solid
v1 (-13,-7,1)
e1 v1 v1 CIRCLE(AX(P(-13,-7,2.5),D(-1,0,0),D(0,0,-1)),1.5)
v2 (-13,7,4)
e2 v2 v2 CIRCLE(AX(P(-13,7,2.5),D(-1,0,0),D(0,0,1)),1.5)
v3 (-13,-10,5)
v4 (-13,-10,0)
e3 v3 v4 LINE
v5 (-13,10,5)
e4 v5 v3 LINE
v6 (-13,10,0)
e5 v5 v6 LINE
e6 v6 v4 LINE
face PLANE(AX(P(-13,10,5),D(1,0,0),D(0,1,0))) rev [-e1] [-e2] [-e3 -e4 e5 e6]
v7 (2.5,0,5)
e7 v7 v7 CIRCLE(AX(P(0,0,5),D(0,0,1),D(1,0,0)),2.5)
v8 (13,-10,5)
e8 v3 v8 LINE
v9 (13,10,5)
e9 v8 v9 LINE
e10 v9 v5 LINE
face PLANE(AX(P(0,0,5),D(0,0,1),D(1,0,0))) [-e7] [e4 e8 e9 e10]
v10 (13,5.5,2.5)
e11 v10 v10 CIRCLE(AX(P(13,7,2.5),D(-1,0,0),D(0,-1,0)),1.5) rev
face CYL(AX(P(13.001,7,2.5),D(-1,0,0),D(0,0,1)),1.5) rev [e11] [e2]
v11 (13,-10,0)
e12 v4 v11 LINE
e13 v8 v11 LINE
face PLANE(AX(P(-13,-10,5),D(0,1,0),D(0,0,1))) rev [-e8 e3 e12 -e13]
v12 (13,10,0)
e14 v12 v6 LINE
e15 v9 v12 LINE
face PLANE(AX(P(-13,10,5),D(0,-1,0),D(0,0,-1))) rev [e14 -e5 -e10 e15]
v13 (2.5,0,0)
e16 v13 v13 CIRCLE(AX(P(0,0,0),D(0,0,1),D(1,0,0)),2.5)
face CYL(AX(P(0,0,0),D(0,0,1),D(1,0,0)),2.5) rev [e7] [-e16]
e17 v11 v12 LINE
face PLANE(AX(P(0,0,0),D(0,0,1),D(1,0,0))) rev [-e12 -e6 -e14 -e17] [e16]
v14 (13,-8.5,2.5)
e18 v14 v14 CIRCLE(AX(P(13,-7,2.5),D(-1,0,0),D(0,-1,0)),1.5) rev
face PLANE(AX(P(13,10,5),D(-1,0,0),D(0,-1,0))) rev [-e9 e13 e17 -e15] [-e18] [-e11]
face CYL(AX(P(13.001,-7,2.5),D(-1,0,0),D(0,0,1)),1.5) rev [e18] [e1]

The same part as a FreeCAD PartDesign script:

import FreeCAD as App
import Part
import Sketcher
from FreeCAD import Vector

doc = App.newDocument("Part")
body = doc.addObject("PartDesign::Body", "Body")

sketch1 = doc.addObject("Sketcher::SketchObject", "Sketch")
body.addObject(sketch1)
sketch1.AttachmentSupport = (doc.XY_Plane, [""])
sketch1.MapMode = "FlatFace"
sketch1.addGeometry([
    Part.LineSegment(Vector(-13, 10, 0), Vector(-13, -10, 0)),
    Part.LineSegment(Vector(-13, -10, 0), Vector(13, -10, 0)),
    Part.LineSegment(Vector(13, -10, 0), Vector(13, 10, 0)),
    Part.LineSegment(Vector(13, 10, 0), Vector(-13, 10, 0)),
], False)
sketch1.addConstraint([
    Sketcher.Constraint("Coincident", 0, 2, 1, 1),
    Sketcher.Constraint("Coincident", 1, 2, 2, 1),
    Sketcher.Constraint("Coincident", 2, 2, 3, 1),
    Sketcher.Constraint("Coincident", 3, 2, 0, 1),
    Sketcher.Constraint("Vertical", 0),
    Sketcher.Constraint("Horizontal", 1),
    Sketcher.Constraint("Vertical", 2),
    Sketcher.Constraint("Horizontal", 3),
    Sketcher.Constraint("Symmetric", 0, 2, 2, 2, -1, 1),
    Sketcher.Constraint("DistanceX", 1, 1, 1, 2, 26.0),
    Sketcher.Constraint("DistanceY", 0, 2, 0, 1, 20.0),
])
pad1 = doc.addObject("PartDesign::Pad", "Pad")
body.addObject(pad1)
pad1.Profile = sketch1
pad1.Length = 5

sketch2 = doc.addObject("Sketcher::SketchObject", "Sketch001")
body.addObject(sketch2)
sketch2.AttachmentSupport = (doc.XY_Plane, [""])
sketch2.MapMode = "FlatFace"
sketch2.AttachmentOffset = App.Placement(Vector(0, 0, 5), App.Rotation())
sketch2.addGeometry(Part.Circle(Vector(0, 0, 0), Vector(0, 0, 1), 2.5), False)
sketch2.addConstraint([
    Sketcher.Constraint("Coincident", 0, 3, -1, 1),
    Sketcher.Constraint("Diameter", 0, 5.0),
])
pocket1 = doc.addObject("PartDesign::Pocket", "Pocket")
body.addObject(pocket1)
pocket1.Profile = sketch2
pocket1.Length = 5

sketch3 = doc.addObject("Sketcher::SketchObject", "Sketch002")
body.addObject(sketch3)
sketch3.AttachmentSupport = (doc.YZ_Plane, [""])
sketch3.MapMode = "FlatFace"
sketch3.AttachmentOffset = App.Placement(Vector(0, 0, -13), App.Rotation())
sketch3.addGeometry(Part.Circle(Vector(7, 2.5, 0), Vector(0, 0, 1), 1.5), False)
sketch3.addConstraint([
    Sketcher.Constraint("Diameter", 0, 3.0),
    Sketcher.Constraint("DistanceX", -1, 1, 0, 3, 7.0),
    Sketcher.Constraint("DistanceY", -1, 1, 0, 3, 2.5),
])
pocket2 = doc.addObject("PartDesign::Pocket", "Pocket001")
body.addObject(pocket2)
pocket2.Profile = sketch3
pocket2.Type = "UpToFirst"
pocket2.Reversed = True

sketch4 = doc.addObject("Sketcher::SketchObject", "Sketch003")
body.addObject(sketch4)
sketch4.AttachmentSupport = (doc.YZ_Plane, [""])
sketch4.MapMode = "FlatFace"
sketch4.AttachmentOffset = App.Placement(Vector(0, 0, -13), App.Rotation())
sketch4.addGeometry(Part.Circle(Vector(-7, 2.5, 0), Vector(0, 0, 1), 1.5), False)
sketch4.addConstraint([
    Sketcher.Constraint("Diameter", 0, 3.0),
    Sketcher.Constraint("DistanceX", 0, 3, -1, 1, 7.0),
    Sketcher.Constraint("DistanceY", -1, 1, 0, 3, 2.5),
])
pocket3 = doc.addObject("PartDesign::Pocket", "Pocket002")
body.addObject(pocket3)
pocket3.Profile = sketch4
pocket3.Type = "UpToFirst"
pocket3.Reversed = True

doc.recompute()
